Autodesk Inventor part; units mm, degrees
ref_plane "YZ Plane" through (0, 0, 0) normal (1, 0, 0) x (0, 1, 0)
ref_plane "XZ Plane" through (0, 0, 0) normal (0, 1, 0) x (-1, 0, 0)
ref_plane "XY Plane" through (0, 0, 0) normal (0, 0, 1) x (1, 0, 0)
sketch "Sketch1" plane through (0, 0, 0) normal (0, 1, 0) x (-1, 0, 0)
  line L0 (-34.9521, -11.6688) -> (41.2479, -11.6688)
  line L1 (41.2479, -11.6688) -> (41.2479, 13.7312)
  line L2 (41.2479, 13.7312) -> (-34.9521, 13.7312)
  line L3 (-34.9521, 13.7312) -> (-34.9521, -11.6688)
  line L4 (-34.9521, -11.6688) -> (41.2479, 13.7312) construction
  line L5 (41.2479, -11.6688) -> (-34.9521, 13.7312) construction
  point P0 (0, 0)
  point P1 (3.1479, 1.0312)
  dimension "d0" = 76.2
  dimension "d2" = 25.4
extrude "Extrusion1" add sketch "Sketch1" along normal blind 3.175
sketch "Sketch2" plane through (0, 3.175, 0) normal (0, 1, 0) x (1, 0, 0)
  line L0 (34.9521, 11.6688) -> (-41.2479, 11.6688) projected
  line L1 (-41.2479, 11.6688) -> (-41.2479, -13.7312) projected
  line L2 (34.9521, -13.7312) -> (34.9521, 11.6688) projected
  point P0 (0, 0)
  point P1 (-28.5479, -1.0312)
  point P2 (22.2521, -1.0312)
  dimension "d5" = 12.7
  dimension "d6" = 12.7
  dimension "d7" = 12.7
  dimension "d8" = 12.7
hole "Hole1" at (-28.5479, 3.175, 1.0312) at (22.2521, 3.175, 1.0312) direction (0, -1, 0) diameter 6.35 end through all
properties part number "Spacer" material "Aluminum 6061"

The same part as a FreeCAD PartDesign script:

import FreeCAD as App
import Part
import Sketcher
from FreeCAD import Vector
Q = App.Units.Quantity


def add_polygon(sketch, points):
    """Adds a closed chain of lines whose ends are joined by coincident constraints."""
    first, n = sketch.GeometryCount, len(points)
    for a, b in zip(points, points[1:] + points[:1]):
        sketch.addGeometry(Part.LineSegment(App.Vector(*a, 0), App.Vector(*b, 0)), False)
    for i in range(n):
        sketch.addConstraint(Sketcher.Constraint("Coincident", first + i, 2, first + (i + 1) % n, 1))

doc = App.newDocument("Part")
body = doc.addObject("PartDesign::Body", "Body")

# Sketch on XZ plane
sketch1 = body.newObject("Sketcher::SketchObject", "Sketch")
sketch1.AttachmentSupport = (doc.getObject("XZ_Plane"), [""])
sketch1.MapMode = "FlatFace"
add_polygon(sketch1, [(35, 14), (35, -12), (-41, -12), (-41, 14)])  # lines 0-3
sketch1.addConstraint([
    Sketcher.Constraint("Vertical", 0),
    Sketcher.Constraint("Horizontal", 1),
    Sketcher.Constraint("Vertical", 2),
    Sketcher.Constraint("Horizontal", 3),
    Sketcher.Constraint("DistanceX", 1, 2, 1, 1, Q("3 in")),
    Sketcher.Constraint("DistanceY", 0, 2, 0, 1, Q("1 in")),
    Sketcher.Constraint("DistanceY", 0, 2, -1, 1, Q("0.4594 in")),
    Sketcher.Constraint("DistanceX", -1, 1, 0, 2, Q("34.952 mm")),
])
pad1 = body.newObject("PartDesign::Pad", "Pad")
pad1.Profile = sketch1
pad1.Length = Q("0.125 in")
pad1.Reversed = True

# Sketch on XZ plane
sketch2 = body.newObject("Sketcher::SketchObject", "Sketch001")
sketch2.AttachmentSupport = (doc.getObject("XZ_Plane"), [""])
sketch2.MapMode = "FlatFace"
sketch2.AttachmentOffset = App.Placement(Vector(0, 0, -0.125 * 25.4), App.Rotation())
sketch2.addGeometry([
    Part.Circle(Vector(-28.5, 1, 0), Vector(0, 0, 1), 3.2),
    Part.Circle(Vector(22.3, 1, 0), Vector(0, 0, 1), 3.2),
], False)
sketch2.addConstraint([
    Sketcher.Constraint("Equal", 0, 1),
    Sketcher.Constraint("Horizontal", 0, 3, 1, 3),
    Sketcher.Constraint("Diameter", 0, Q("0.25 in")),
    Sketcher.Constraint("DistanceX", 0, 3, 1, 3, Q("2 in")),
    Sketcher.Constraint("DistanceY", -1, 1, 0, 3, Q("0.0406 in")),
    Sketcher.Constraint("DistanceX", 0, 3, -1, 1, Q("28.548 mm")),
])
doc.recompute()
hole = body.newObject("PartDesign::Hole", "Hole")
hole.Profile = sketch2
hole.ThreadType = "None"
hole.Diameter = Q("0.25 in")
hole.DepthType = "ThroughAll"
hole.Reversed = True

doc.recompute()
